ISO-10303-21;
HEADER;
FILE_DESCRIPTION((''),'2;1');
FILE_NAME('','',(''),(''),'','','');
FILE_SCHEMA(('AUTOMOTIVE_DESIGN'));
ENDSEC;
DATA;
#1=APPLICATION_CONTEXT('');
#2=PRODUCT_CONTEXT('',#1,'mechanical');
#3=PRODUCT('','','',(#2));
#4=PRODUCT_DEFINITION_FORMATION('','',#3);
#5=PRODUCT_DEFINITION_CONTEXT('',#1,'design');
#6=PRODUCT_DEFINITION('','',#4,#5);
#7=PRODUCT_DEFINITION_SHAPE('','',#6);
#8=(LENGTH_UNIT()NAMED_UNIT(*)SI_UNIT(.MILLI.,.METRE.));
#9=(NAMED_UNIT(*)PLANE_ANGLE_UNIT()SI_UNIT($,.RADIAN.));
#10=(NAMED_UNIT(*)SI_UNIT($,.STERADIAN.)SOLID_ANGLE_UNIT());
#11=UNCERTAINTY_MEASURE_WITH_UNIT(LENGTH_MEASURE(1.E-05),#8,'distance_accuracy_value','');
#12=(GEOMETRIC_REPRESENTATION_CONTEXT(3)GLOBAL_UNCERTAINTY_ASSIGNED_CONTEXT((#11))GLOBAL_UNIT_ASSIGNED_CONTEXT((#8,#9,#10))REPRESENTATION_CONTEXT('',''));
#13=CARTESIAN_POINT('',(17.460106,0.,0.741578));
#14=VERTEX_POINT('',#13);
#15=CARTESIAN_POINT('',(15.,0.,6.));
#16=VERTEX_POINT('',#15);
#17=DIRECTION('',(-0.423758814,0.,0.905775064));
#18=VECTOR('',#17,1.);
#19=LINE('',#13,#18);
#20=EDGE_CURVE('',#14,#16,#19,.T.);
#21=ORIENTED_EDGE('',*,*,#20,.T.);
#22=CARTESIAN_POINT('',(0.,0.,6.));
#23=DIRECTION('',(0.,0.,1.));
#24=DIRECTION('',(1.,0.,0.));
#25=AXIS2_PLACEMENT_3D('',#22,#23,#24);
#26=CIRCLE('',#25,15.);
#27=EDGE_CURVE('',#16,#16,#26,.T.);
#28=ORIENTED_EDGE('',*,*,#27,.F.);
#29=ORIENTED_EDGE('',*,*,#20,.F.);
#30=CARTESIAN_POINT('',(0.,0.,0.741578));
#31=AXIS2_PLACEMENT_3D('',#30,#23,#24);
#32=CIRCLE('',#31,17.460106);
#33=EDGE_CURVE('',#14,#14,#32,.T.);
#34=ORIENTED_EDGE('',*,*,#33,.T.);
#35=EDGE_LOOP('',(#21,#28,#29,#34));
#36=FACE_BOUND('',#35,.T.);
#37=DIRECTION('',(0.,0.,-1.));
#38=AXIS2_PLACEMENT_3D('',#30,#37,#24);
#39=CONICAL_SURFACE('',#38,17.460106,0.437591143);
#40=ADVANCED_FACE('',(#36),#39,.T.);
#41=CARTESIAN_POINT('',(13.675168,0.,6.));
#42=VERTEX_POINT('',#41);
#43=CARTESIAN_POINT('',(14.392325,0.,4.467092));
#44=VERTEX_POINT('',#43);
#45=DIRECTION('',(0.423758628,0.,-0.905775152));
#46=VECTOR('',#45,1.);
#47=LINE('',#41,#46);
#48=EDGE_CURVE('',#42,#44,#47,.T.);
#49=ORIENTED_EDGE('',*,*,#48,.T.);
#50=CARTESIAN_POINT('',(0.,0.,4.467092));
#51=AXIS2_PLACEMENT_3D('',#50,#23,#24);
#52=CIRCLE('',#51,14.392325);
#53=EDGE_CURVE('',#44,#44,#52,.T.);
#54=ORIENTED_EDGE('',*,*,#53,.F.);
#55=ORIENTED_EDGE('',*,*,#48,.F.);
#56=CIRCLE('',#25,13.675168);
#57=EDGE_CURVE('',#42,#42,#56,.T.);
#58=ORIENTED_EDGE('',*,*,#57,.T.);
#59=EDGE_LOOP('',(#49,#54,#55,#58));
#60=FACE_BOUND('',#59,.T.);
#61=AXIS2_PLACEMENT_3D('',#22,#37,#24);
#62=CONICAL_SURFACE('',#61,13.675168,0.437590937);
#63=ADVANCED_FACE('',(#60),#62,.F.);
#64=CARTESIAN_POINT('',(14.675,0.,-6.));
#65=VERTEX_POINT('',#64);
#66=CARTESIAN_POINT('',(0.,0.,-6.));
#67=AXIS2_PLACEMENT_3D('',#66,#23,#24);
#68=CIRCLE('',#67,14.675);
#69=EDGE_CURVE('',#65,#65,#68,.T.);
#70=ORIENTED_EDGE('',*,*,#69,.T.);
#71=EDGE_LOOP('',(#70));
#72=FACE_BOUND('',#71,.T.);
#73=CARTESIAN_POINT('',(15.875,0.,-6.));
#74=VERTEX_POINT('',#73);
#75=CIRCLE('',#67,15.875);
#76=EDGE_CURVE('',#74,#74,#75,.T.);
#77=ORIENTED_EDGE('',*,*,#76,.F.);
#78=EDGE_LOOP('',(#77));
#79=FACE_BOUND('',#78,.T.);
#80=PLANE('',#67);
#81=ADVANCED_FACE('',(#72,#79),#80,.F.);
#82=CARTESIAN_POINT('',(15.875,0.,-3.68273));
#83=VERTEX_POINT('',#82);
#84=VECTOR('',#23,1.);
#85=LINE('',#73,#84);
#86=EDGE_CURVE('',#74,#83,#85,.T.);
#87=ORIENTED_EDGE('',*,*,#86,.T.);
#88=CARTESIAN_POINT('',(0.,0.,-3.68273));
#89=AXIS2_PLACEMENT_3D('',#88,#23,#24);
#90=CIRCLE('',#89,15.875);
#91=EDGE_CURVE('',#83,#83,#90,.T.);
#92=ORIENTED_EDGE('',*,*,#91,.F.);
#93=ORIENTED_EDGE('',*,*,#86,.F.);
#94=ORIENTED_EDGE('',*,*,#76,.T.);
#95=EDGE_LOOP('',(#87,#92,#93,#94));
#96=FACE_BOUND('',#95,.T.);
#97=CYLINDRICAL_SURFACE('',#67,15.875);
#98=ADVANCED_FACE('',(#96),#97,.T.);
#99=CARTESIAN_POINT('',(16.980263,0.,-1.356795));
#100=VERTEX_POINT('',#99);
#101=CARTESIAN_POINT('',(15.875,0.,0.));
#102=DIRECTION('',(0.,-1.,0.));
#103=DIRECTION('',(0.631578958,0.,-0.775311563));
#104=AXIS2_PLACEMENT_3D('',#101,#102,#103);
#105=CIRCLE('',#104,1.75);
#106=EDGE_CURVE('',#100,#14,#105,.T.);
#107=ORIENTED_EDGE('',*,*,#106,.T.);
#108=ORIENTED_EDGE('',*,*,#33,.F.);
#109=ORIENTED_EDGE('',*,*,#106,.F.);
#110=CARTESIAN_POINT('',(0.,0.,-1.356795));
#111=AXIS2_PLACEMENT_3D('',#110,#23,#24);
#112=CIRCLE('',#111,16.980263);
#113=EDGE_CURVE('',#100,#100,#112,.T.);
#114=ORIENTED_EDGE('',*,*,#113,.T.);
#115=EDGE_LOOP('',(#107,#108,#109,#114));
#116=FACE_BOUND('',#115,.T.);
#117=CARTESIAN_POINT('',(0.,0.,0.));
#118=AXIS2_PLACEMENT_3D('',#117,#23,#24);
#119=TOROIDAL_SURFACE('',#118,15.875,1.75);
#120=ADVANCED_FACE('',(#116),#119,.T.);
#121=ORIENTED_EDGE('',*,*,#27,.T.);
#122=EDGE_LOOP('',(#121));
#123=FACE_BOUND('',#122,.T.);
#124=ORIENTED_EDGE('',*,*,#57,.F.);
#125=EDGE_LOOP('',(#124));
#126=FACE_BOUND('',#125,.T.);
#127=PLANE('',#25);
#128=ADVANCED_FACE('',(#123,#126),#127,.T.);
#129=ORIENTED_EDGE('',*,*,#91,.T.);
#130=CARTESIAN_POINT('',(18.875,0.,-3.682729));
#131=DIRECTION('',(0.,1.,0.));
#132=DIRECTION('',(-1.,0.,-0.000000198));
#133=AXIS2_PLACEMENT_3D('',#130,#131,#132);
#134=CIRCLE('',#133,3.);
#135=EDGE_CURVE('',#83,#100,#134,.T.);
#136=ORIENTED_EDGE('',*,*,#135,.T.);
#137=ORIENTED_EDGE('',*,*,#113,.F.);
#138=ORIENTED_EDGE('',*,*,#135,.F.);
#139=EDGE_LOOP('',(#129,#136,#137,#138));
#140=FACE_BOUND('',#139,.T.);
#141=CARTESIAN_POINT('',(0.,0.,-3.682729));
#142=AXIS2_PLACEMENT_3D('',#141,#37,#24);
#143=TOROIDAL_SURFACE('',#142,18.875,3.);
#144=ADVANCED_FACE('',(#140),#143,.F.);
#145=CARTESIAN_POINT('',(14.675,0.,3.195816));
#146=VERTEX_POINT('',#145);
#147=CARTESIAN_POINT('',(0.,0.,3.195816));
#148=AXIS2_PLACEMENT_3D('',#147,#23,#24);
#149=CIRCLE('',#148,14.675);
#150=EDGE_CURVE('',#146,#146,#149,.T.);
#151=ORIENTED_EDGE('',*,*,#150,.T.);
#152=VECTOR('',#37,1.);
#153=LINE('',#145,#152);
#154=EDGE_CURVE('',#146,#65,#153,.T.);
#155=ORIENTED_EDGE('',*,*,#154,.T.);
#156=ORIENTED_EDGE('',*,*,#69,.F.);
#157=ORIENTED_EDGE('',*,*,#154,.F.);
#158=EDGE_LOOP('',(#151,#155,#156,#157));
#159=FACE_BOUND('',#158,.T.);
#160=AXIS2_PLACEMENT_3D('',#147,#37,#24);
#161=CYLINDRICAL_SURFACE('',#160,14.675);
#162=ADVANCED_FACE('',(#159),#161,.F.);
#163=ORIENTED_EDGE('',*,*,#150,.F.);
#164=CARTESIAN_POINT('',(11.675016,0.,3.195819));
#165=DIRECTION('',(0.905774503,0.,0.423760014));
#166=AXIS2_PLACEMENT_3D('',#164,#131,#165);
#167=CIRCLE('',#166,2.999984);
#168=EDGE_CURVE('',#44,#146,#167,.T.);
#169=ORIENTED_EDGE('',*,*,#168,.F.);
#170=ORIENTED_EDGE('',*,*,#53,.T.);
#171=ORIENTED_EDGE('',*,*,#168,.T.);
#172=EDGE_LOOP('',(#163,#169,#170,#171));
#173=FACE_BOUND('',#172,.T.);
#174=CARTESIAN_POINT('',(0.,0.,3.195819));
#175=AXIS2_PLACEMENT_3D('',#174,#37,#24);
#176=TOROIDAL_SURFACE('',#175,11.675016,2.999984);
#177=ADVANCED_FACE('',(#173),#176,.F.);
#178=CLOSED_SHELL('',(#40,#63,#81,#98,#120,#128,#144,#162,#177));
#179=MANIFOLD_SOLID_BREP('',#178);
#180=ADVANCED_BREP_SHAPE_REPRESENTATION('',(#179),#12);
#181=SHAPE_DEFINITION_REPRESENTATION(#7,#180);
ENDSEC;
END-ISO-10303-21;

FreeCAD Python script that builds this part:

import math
import FreeCAD as App
import Part
import Sketcher
from FreeCAD import Vector
Q = App.Units.Quantity

doc = App.newDocument("Part")
body = doc.addObject("PartDesign::Body", "Body")

# Sketch on XZ plane
sketch1 = body.newObject("Sketcher::SketchObject", "Sketch")
sketch1.AttachmentSupport = (doc.getObject("XZ_Plane"), [""])
sketch1.MapMode = "FlatFace"
sketch1.addGeometry([
    Part.LineSegment(Vector(14.7, 3.2, 0), Vector(14.7, -6, 0)),  # 0
    Part.LineSegment(Vector(14.7, -6, 0), Vector(15.9, -6, 0)),  # 1
    Part.LineSegment(Vector(15.9, -6, 0), Vector(15.9, -3.7, 0)),  # 2
    Part.ArcOfCircle(Part.Circle(Vector(18.9, -3.7, 0), Vector(0, 0, 1), 3), math.radians(129), math.radians(180)),  # 3
    Part.ArcOfCircle(Part.Circle(Vector(15.9, 0, 0), Vector(0, 0, 1), 1.7), math.radians(-51), math.radians(25)),  # 4
    Part.LineSegment(Vector(17.5, 0.7, 0), Vector(15, 6, 0)),  # 5
    Part.LineSegment(Vector(15, 6, 0), Vector(13.7, 6, 0)),  # 6
    Part.LineSegment(Vector(13.7, 6, 0), Vector(14.4, 4.5, 0)),  # 7
    Part.ArcOfCircle(Part.Circle(Vector(11.7, 3.2, 0), Vector(0, 0, 1), 3), math.radians(0), math.radians(25)),  # 8
], False)
sketch1.addConstraint([
    Sketcher.Constraint("Coincident", 0, 2, 1, 1),
    Sketcher.Constraint("Coincident", 1, 2, 2, 1),
    Sketcher.Constraint("Tangent", 2, 2, 3, 2),
    Sketcher.Constraint("Tangent", 3, 1, 4, 1),
    Sketcher.Constraint("Tangent", 4, 2, 5, 1),
    Sketcher.Constraint("Coincident", 5, 2, 6, 1),
    Sketcher.Constraint("Coincident", 6, 2, 7, 1),
    Sketcher.Constraint("Tangent", 7, 2, 8, 2),
    Sketcher.Constraint("Tangent", 8, 1, 0, 1),
    Sketcher.Constraint("Vertical", 0),
    Sketcher.Constraint("Horizontal", 1),
    Sketcher.Constraint("Vertical", 2),
    Sketcher.Constraint("Horizontal", 6),
    Sketcher.Constraint("PointOnObject", 4, 3, -1),
    Sketcher.Constraint("Parallel", 5, 7),
    Sketcher.Constraint("Vertical", 4, 3, 1, 2),
    Sketcher.Constraint("Radius", 3, Q("3 mm")),
    Sketcher.Constraint("Radius", 4, Q("1.75 mm")),
    Sketcher.Constraint("DistanceX", 1, 1, 1, 2, Q("1.2 mm")),
    Sketcher.Constraint("DistanceY", 0, 2, -1, 1, Q("6 mm")),
    Sketcher.Constraint("DistanceX", -1, 1, 5, 2, Q("15 mm")),
    Sketcher.Constraint("DistanceY", -1, 1, 5, 2, Q("6 mm")),
    Sketcher.Constraint("DistanceX", -1, 1, 3, 3, Q("18.875 mm")),
    Sketcher.Constraint("Radius", 8, Q("2.999984 mm")),
    Sketcher.Constraint("Distance", 7, Q("1.692371 mm")),
])
revolution = body.newObject("PartDesign::Revolution", "Revolution")
revolution.Profile = sketch1
revolution.ReferenceAxis = (sketch1, ["V_Axis"])
revolution.Angle = 360

doc.recompute()
